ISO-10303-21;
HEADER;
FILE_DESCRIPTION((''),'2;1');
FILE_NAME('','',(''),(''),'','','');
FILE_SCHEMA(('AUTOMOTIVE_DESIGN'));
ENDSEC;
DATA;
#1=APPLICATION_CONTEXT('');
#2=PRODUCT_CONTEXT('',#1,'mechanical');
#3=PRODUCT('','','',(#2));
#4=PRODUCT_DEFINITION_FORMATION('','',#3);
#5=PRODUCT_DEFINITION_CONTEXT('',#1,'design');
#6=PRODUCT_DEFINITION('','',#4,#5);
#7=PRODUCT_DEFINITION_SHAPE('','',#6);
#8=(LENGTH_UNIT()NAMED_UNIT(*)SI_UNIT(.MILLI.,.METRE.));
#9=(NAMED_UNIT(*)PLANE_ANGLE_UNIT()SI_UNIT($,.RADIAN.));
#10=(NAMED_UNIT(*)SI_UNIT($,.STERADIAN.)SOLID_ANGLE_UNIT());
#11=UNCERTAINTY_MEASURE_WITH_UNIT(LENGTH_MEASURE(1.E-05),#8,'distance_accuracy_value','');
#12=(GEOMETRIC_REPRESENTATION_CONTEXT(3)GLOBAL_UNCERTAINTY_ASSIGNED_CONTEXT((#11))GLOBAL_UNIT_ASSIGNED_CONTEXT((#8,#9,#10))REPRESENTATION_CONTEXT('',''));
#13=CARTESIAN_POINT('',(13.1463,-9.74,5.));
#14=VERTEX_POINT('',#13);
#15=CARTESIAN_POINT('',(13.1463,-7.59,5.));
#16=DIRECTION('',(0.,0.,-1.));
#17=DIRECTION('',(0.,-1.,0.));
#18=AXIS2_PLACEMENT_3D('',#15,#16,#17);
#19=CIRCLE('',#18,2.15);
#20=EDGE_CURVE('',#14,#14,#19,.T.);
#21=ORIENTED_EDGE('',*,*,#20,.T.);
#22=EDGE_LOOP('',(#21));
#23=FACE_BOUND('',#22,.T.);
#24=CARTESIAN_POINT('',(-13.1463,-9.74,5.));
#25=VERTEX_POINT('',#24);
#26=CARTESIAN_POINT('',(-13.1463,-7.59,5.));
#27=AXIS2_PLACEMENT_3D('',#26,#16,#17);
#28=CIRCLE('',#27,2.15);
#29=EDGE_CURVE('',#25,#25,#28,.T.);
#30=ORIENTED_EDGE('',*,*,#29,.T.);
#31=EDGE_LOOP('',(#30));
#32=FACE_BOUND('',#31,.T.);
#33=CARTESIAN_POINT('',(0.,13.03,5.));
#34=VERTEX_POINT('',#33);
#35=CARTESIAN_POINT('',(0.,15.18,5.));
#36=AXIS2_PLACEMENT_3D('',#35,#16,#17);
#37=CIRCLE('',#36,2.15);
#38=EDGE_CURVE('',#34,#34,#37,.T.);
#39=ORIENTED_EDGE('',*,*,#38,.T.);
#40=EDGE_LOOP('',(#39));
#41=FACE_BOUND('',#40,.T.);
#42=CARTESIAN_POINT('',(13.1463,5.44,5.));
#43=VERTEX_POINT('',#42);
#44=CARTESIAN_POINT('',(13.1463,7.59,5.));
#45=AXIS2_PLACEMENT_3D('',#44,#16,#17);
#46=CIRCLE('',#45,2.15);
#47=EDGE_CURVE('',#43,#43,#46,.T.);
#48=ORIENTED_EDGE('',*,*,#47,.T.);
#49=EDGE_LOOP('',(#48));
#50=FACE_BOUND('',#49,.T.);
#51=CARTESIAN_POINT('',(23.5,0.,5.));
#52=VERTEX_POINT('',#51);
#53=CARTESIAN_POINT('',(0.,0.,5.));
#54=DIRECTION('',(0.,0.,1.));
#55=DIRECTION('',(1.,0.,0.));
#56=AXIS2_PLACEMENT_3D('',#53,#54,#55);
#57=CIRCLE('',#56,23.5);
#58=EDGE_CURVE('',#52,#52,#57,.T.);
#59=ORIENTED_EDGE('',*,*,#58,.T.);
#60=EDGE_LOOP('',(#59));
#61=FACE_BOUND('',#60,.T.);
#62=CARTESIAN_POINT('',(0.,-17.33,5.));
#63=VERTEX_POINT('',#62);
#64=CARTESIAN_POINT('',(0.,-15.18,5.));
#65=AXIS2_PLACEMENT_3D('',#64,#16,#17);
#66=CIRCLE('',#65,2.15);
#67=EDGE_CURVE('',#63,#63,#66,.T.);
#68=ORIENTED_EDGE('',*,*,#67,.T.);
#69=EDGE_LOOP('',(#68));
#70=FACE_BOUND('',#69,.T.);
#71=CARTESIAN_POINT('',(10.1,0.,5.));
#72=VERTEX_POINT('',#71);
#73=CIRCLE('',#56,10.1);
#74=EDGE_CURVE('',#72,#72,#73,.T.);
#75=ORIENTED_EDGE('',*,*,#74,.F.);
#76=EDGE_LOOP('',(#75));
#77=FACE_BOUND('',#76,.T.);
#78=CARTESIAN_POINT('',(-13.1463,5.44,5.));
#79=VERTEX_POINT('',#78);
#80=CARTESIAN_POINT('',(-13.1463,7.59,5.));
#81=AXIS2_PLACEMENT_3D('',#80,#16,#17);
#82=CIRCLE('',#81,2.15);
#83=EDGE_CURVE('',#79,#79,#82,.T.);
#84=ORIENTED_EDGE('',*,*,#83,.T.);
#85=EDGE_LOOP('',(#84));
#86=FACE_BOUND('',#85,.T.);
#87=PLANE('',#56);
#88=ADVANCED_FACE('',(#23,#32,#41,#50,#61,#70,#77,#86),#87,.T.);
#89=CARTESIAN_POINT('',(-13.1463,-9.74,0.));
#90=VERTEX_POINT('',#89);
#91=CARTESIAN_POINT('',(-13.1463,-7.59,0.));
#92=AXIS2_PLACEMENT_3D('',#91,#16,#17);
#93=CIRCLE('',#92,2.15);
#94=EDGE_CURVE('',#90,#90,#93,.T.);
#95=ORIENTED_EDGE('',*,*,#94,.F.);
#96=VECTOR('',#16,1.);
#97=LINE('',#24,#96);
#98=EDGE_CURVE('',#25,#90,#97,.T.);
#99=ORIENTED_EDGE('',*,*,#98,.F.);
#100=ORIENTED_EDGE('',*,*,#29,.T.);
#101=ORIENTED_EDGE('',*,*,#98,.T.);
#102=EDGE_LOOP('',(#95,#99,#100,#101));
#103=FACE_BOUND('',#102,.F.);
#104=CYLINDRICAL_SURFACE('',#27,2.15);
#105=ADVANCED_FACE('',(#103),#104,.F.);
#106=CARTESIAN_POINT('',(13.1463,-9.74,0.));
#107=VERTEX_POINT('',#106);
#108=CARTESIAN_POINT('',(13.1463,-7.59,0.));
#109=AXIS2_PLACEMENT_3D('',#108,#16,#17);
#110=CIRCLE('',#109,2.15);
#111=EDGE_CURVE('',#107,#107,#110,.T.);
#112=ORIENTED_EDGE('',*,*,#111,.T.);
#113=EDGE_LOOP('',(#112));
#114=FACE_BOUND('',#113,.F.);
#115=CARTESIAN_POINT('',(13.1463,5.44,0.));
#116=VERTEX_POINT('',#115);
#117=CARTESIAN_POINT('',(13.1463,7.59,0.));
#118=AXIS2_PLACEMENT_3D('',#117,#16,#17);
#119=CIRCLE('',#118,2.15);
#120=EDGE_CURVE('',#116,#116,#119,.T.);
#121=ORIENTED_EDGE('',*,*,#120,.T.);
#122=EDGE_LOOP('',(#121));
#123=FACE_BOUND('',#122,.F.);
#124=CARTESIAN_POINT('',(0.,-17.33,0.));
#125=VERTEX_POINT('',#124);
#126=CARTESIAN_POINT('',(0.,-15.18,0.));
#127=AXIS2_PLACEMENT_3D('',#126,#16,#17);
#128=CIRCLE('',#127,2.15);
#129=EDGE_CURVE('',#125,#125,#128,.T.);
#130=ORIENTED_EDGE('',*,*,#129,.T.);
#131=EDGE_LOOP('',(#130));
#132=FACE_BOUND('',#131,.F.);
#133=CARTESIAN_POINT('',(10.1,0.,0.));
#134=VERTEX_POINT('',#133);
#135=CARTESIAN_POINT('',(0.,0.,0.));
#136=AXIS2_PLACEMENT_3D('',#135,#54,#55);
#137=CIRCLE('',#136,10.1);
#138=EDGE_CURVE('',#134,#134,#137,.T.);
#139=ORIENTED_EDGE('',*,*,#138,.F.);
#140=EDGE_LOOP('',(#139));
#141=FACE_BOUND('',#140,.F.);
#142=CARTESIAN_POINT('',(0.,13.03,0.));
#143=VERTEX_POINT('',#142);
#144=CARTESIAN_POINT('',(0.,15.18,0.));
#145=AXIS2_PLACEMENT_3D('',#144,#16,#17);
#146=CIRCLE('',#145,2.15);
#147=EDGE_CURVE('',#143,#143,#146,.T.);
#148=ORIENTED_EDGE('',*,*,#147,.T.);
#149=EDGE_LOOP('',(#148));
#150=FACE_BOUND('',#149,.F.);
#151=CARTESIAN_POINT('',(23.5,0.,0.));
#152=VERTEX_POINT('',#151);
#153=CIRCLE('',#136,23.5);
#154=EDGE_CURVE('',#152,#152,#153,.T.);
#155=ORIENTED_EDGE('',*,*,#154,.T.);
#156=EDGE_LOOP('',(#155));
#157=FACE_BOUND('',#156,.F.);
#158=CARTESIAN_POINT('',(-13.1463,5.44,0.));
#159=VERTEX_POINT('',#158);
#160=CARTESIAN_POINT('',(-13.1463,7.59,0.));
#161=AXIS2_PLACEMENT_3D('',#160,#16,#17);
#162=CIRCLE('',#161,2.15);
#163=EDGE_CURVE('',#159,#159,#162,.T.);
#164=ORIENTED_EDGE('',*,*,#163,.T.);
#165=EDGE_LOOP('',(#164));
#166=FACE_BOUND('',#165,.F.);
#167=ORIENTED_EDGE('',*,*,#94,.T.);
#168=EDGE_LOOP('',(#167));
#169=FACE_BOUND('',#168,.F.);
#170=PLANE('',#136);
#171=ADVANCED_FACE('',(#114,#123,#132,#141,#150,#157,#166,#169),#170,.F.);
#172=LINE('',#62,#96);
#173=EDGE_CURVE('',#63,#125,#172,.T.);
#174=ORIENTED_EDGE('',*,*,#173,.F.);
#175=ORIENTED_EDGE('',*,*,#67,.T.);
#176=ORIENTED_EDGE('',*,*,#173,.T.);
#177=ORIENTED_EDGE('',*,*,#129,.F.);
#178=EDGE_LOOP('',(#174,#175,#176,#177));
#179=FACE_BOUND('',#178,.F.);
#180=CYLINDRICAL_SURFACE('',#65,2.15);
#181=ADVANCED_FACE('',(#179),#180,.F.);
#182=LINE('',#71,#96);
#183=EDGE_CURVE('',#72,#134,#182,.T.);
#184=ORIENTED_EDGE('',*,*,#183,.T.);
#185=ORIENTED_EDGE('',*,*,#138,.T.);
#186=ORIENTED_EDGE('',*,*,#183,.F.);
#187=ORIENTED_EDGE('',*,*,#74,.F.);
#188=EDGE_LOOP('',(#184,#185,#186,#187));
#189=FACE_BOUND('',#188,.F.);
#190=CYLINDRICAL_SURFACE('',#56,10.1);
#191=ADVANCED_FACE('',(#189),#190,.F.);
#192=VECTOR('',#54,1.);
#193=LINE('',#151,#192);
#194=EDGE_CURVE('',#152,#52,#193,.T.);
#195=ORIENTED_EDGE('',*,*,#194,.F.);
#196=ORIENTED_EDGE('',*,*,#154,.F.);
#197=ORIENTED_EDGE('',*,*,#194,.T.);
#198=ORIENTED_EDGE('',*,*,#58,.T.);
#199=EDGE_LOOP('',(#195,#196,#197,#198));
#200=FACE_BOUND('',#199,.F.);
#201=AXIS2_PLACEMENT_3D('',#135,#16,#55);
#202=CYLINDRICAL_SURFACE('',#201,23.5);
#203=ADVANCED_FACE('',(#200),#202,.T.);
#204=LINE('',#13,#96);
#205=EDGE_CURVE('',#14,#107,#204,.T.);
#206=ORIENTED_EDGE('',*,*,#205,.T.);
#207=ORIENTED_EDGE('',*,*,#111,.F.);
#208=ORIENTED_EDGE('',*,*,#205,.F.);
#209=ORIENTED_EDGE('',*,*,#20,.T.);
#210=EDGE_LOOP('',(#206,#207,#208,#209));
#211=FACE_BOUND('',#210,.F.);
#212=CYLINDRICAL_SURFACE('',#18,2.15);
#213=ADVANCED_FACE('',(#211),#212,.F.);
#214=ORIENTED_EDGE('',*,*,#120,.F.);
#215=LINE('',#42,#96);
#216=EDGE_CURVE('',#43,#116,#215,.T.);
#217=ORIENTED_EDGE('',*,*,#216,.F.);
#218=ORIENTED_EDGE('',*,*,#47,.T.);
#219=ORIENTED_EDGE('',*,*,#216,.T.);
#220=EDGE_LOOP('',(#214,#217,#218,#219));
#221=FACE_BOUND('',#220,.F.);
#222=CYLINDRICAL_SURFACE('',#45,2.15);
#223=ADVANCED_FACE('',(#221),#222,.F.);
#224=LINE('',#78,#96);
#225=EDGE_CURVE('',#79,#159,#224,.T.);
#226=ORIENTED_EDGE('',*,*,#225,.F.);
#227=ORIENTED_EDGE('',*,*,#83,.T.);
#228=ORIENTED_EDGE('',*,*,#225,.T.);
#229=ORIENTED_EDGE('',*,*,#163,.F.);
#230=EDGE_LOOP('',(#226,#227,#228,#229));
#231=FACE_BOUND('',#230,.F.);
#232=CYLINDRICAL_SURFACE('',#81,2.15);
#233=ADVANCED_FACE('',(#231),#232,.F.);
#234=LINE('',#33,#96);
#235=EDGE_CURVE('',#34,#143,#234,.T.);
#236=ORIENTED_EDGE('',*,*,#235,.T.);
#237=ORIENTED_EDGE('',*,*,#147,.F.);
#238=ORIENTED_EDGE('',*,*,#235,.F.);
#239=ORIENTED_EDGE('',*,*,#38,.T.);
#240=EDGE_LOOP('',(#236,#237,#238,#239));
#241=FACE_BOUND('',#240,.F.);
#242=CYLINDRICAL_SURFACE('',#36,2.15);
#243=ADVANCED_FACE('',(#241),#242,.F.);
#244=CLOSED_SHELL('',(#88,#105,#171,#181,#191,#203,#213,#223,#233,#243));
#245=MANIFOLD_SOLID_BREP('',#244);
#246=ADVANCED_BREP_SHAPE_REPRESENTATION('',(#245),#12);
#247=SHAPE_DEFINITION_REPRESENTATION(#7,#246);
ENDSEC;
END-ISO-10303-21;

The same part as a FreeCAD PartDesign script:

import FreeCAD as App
import Part
import Sketcher

doc = App.newDocument("Part")
body = doc.addObject("PartDesign::Body", "Body")

sketch1 = body.newObject("Sketcher::SketchObject", "Sketch")
sketch1.AttachmentSupport = (doc.getObject("XY_Plane"), [""])
sketch1.MapMode = "FlatFace"
sketch1.addGeometry(Part.Circle(App.Vector(0, 0, 0), App.Vector(0, 0, 1), 24), False)
sketch1.addConstraint(Sketcher.Constraint("Coincident", 0, 3, -1, 1))
sketch1.addConstraint(Sketcher.Constraint("Diameter", 0, 47.0))
pad1 = body.newObject("PartDesign::Pad", "Pad")
pad1.Profile = sketch1
pad1.Length = 5

sketch2 = body.newObject("Sketcher::SketchObject", "Sketch001")
sketch2.AttachmentSupport = (doc.getObject("XY_Plane"), [""])
sketch2.MapMode = "FlatFace"
sketch2.AttachmentOffset = App.Placement(App.Vector(0, 0, 5), App.Rotation())
sketch2.addGeometry(Part.Circle(App.Vector(0, 15.2, 0), App.Vector(0, 0, 1), 2.1), False)
sketch2.addGeometry(Part.Circle(App.Vector(-13.1, 7.6, 0), App.Vector(0, 0, 1), 2.1), False)
sketch2.addGeometry(Part.Circle(App.Vector(-13.1, -7.6, 0), App.Vector(0, 0, 1), 2.1), False)
sketch2.addGeometry(Part.Circle(App.Vector(0, -15.2, 0), App.Vector(0, 0, 1), 2.1), False)
sketch2.addGeometry(Part.Circle(App.Vector(13.1, -7.6, 0), App.Vector(0, 0, 1), 2.1), False)
sketch2.addGeometry(Part.Circle(App.Vector(13.1, 7.6, 0), App.Vector(0, 0, 1), 2.1), False)
sketch2.addConstraint(Sketcher.Constraint("Equal", 0, 1))
sketch2.addConstraint(Sketcher.Constraint("Equal", 1, 2))
sketch2.addConstraint(Sketcher.Constraint("Equal", 2, 3))
sketch2.addConstraint(Sketcher.Constraint("Equal", 3, 4))
sketch2.addConstraint(Sketcher.Constraint("Equal", 4, 5))
sketch2.addConstraint(Sketcher.Constraint("Symmetric", 0, 3, 3, 3, -1, 1))
sketch2.addConstraint(Sketcher.Constraint("Symmetric", 1, 3, 4, 3, -1, 1))
sketch2.addConstraint(Sketcher.Constraint("Symmetric", 2, 3, 5, 3, -1, 1))
sketch2.addConstraint(Sketcher.Constraint("Symmetric", 2, 3, 4, 3, -2))
sketch2.addConstraint(Sketcher.Constraint("PointOnObject", 0, 3, -2))
sketch2.addConstraint(Sketcher.Constraint("Diameter", 0, 4.3))
sketch2.addConstraint(Sketcher.Constraint("DistanceY", -1, 1, 0, 3, 15.18))
sketch2.addConstraint(Sketcher.Constraint("DistanceY", -1, 1, 1, 3, 7.59))
sketch2.addConstraint(Sketcher.Constraint("DistanceX", 1, 3, -1, 1, 13.1463))
doc.recompute()
hole = body.newObject("PartDesign::Hole", "Hole")
hole.Profile = sketch2
hole.ThreadType = "None"
hole.Diameter = 4.3
hole.DepthType = "ThroughAll"

sketch3 = body.newObject("Sketcher::SketchObject", "Sketch002")
sketch3.AttachmentSupport = (doc.getObject("XY_Plane"), [""])
sketch3.MapMode = "FlatFace"
sketch3.AttachmentOffset = App.Placement(App.Vector(0, 0, 5), App.Rotation())
sketch3.addGeometry(Part.Circle(App.Vector(0, 0, 0), App.Vector(0, 0, 1), 10), False)
sketch3.addConstraint(Sketcher.Constraint("Coincident", 0, 3, -1, 1))
sketch3.addConstraint(Sketcher.Constraint("Diameter", 0, 20.2))
pocket1 = body.newObject("PartDesign::Pocket", "Pocket")
pocket1.Profile = sketch3
pocket1.Length = 5

doc.recompute()
